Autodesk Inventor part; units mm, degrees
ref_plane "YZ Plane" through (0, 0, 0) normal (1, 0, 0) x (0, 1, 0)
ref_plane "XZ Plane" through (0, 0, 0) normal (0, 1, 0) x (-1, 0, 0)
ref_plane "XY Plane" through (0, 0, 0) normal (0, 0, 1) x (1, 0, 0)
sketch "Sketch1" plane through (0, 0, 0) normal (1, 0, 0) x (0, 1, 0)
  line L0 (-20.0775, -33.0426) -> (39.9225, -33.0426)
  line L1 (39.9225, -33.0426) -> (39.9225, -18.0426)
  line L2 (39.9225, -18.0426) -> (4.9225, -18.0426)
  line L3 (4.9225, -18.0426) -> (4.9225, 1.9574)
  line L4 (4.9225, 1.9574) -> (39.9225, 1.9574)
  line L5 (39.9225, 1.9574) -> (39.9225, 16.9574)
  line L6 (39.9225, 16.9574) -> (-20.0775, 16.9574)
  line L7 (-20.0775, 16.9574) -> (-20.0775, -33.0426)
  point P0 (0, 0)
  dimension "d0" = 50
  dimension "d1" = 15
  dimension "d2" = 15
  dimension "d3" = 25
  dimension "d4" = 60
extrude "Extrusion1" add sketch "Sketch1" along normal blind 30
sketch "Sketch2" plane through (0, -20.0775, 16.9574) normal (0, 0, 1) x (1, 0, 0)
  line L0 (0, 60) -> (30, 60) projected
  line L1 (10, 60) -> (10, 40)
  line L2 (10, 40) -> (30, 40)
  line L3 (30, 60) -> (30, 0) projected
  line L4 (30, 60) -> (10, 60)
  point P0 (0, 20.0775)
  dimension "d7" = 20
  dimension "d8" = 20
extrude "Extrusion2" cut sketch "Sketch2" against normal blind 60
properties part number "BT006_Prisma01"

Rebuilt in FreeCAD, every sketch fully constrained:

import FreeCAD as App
import Part
import Sketcher
from FreeCAD import Vector
Q = App.Units.Quantity

doc = App.newDocument("Part")
body = doc.addObject("PartDesign::Body", "Body")

sketch1 = body.newObject("Sketcher::SketchObject", "Sketch")
sketch1.AttachmentSupport = (doc.getObject("YZ_Plane"), [""])
sketch1.MapMode = "FlatFace"
sketch1.addGeometry([
    Part.LineSegment(Vector(-20.0775, 16.9574, 0), Vector(-20.0775, -33.0426, 0)),
    Part.LineSegment(Vector(-20.0775, -33.0426, 0), Vector(39.9225, -33.0426, 0)),
    Part.LineSegment(Vector(39.9225, -33.0426, 0), Vector(39.9225, -18.0426, 0)),
    Part.LineSegment(Vector(39.9225, -18.0426, 0), Vector(4.9225, -18.0426, 0)),
    Part.LineSegment(Vector(4.9225, -18.0426, 0), Vector(4.9225, 1.9574, 0)),
    Part.LineSegment(Vector(4.9225, 1.9574, 0), Vector(39.9225, 1.9574, 0)),
    Part.LineSegment(Vector(39.9225, 1.9574, 0), Vector(39.9225, 16.9574, 0)),
    Part.LineSegment(Vector(39.9225, 16.9574, 0), Vector(-20.0775, 16.9574, 0)),
], False)
sketch1.addConstraint([
    Sketcher.Constraint("Coincident", 0, 2, 1, 1),
    Sketcher.Constraint("Coincident", 1, 2, 2, 1),
    Sketcher.Constraint("Coincident", 2, 2, 3, 1),
    Sketcher.Constraint("Coincident", 3, 2, 4, 1),
    Sketcher.Constraint("Coincident", 4, 2, 5, 1),
    Sketcher.Constraint("Coincident", 5, 2, 6, 1),
    Sketcher.Constraint("Coincident", 6, 2, 7, 1),
    Sketcher.Constraint("Coincident", 7, 2, 0, 1),
    Sketcher.Constraint("Vertical", 0),
    Sketcher.Constraint("Horizontal", 1),
    Sketcher.Constraint("Vertical", 2),
    Sketcher.Constraint("Horizontal", 3),
    Sketcher.Constraint("Vertical", 4),
    Sketcher.Constraint("Horizontal", 5),
    Sketcher.Constraint("Vertical", 6),
    Sketcher.Constraint("Horizontal", 7),
    Sketcher.Constraint("Vertical", 2, 2, 5, 2),
    Sketcher.Constraint("Equal", 2, 6),
    Sketcher.Constraint("DistanceX", 1, 1, 1, 2, Q("60 mm")),
    Sketcher.Constraint("DistanceY", 0, 2, 0, 1, Q("50 mm")),
    Sketcher.Constraint("DistanceY", 2, 1, 2, 2, Q("15 mm")),
    Sketcher.Constraint("DistanceX", 0, 2, 3, 2, Q("25 mm")),
    Sketcher.Constraint("DistanceX", 0, 2, -1, 1, Q("20.0775 mm")),
    Sketcher.Constraint("DistanceY", 0, 2, -1, 1, Q("33.0426 mm")),
])
pad1 = body.newObject("PartDesign::Pad", "Pad")
pad1.Profile = sketch1
pad1.Length = 30

sketch2 = body.newObject("Sketcher::SketchObject", "Sketch001")
sketch2.AttachmentSupport = (doc.getObject("XY_Plane"), [""])
sketch2.MapMode = "FlatFace"
sketch2.AttachmentOffset = App.Placement(Vector(0, 0, 16.9574), App.Rotation())
sketch2.addGeometry([
    Part.LineSegment(Vector(30, 39.9225, 0), Vector(10, 39.9225, 0)),
    Part.LineSegment(Vector(10, 39.9225, 0), Vector(10, 19.9225, 0)),
    Part.LineSegment(Vector(10, 19.9225, 0), Vector(30, 19.9225, 0)),
    Part.LineSegment(Vector(30, 19.9225, 0), Vector(30, 39.9225, 0)),
], False)
sketch2.addConstraint([
    Sketcher.Constraint("Coincident", 0, 2, 1, 1),
    Sketcher.Constraint("Coincident", 1, 2, 2, 1),
    Sketcher.Constraint("Coincident", 2, 2, 3, 1),
    Sketcher.Constraint("Coincident", 3, 2, 0, 1),
    Sketcher.Constraint("Horizontal", 0),
    Sketcher.Constraint("Vertical", 1),
    Sketcher.Constraint("Horizontal", 2),
    Sketcher.Constraint("Vertical", 3),
    Sketcher.Constraint("Equal", 2, 1),
    Sketcher.Constraint("DistanceX", 0, 2, 0, 1, Q("20 mm")),
    Sketcher.Constraint("DistanceX", -1, 1, 0, 2, Q("10 mm")),
    Sketcher.Constraint("DistanceY", -1, 1, 0, 2, Q("39.9225 mm")),
])
pocket1 = body.newObject("PartDesign::Pocket", "Pocket")
pocket1.Profile = sketch2
pocket1.Length = 60

doc.recompute()
